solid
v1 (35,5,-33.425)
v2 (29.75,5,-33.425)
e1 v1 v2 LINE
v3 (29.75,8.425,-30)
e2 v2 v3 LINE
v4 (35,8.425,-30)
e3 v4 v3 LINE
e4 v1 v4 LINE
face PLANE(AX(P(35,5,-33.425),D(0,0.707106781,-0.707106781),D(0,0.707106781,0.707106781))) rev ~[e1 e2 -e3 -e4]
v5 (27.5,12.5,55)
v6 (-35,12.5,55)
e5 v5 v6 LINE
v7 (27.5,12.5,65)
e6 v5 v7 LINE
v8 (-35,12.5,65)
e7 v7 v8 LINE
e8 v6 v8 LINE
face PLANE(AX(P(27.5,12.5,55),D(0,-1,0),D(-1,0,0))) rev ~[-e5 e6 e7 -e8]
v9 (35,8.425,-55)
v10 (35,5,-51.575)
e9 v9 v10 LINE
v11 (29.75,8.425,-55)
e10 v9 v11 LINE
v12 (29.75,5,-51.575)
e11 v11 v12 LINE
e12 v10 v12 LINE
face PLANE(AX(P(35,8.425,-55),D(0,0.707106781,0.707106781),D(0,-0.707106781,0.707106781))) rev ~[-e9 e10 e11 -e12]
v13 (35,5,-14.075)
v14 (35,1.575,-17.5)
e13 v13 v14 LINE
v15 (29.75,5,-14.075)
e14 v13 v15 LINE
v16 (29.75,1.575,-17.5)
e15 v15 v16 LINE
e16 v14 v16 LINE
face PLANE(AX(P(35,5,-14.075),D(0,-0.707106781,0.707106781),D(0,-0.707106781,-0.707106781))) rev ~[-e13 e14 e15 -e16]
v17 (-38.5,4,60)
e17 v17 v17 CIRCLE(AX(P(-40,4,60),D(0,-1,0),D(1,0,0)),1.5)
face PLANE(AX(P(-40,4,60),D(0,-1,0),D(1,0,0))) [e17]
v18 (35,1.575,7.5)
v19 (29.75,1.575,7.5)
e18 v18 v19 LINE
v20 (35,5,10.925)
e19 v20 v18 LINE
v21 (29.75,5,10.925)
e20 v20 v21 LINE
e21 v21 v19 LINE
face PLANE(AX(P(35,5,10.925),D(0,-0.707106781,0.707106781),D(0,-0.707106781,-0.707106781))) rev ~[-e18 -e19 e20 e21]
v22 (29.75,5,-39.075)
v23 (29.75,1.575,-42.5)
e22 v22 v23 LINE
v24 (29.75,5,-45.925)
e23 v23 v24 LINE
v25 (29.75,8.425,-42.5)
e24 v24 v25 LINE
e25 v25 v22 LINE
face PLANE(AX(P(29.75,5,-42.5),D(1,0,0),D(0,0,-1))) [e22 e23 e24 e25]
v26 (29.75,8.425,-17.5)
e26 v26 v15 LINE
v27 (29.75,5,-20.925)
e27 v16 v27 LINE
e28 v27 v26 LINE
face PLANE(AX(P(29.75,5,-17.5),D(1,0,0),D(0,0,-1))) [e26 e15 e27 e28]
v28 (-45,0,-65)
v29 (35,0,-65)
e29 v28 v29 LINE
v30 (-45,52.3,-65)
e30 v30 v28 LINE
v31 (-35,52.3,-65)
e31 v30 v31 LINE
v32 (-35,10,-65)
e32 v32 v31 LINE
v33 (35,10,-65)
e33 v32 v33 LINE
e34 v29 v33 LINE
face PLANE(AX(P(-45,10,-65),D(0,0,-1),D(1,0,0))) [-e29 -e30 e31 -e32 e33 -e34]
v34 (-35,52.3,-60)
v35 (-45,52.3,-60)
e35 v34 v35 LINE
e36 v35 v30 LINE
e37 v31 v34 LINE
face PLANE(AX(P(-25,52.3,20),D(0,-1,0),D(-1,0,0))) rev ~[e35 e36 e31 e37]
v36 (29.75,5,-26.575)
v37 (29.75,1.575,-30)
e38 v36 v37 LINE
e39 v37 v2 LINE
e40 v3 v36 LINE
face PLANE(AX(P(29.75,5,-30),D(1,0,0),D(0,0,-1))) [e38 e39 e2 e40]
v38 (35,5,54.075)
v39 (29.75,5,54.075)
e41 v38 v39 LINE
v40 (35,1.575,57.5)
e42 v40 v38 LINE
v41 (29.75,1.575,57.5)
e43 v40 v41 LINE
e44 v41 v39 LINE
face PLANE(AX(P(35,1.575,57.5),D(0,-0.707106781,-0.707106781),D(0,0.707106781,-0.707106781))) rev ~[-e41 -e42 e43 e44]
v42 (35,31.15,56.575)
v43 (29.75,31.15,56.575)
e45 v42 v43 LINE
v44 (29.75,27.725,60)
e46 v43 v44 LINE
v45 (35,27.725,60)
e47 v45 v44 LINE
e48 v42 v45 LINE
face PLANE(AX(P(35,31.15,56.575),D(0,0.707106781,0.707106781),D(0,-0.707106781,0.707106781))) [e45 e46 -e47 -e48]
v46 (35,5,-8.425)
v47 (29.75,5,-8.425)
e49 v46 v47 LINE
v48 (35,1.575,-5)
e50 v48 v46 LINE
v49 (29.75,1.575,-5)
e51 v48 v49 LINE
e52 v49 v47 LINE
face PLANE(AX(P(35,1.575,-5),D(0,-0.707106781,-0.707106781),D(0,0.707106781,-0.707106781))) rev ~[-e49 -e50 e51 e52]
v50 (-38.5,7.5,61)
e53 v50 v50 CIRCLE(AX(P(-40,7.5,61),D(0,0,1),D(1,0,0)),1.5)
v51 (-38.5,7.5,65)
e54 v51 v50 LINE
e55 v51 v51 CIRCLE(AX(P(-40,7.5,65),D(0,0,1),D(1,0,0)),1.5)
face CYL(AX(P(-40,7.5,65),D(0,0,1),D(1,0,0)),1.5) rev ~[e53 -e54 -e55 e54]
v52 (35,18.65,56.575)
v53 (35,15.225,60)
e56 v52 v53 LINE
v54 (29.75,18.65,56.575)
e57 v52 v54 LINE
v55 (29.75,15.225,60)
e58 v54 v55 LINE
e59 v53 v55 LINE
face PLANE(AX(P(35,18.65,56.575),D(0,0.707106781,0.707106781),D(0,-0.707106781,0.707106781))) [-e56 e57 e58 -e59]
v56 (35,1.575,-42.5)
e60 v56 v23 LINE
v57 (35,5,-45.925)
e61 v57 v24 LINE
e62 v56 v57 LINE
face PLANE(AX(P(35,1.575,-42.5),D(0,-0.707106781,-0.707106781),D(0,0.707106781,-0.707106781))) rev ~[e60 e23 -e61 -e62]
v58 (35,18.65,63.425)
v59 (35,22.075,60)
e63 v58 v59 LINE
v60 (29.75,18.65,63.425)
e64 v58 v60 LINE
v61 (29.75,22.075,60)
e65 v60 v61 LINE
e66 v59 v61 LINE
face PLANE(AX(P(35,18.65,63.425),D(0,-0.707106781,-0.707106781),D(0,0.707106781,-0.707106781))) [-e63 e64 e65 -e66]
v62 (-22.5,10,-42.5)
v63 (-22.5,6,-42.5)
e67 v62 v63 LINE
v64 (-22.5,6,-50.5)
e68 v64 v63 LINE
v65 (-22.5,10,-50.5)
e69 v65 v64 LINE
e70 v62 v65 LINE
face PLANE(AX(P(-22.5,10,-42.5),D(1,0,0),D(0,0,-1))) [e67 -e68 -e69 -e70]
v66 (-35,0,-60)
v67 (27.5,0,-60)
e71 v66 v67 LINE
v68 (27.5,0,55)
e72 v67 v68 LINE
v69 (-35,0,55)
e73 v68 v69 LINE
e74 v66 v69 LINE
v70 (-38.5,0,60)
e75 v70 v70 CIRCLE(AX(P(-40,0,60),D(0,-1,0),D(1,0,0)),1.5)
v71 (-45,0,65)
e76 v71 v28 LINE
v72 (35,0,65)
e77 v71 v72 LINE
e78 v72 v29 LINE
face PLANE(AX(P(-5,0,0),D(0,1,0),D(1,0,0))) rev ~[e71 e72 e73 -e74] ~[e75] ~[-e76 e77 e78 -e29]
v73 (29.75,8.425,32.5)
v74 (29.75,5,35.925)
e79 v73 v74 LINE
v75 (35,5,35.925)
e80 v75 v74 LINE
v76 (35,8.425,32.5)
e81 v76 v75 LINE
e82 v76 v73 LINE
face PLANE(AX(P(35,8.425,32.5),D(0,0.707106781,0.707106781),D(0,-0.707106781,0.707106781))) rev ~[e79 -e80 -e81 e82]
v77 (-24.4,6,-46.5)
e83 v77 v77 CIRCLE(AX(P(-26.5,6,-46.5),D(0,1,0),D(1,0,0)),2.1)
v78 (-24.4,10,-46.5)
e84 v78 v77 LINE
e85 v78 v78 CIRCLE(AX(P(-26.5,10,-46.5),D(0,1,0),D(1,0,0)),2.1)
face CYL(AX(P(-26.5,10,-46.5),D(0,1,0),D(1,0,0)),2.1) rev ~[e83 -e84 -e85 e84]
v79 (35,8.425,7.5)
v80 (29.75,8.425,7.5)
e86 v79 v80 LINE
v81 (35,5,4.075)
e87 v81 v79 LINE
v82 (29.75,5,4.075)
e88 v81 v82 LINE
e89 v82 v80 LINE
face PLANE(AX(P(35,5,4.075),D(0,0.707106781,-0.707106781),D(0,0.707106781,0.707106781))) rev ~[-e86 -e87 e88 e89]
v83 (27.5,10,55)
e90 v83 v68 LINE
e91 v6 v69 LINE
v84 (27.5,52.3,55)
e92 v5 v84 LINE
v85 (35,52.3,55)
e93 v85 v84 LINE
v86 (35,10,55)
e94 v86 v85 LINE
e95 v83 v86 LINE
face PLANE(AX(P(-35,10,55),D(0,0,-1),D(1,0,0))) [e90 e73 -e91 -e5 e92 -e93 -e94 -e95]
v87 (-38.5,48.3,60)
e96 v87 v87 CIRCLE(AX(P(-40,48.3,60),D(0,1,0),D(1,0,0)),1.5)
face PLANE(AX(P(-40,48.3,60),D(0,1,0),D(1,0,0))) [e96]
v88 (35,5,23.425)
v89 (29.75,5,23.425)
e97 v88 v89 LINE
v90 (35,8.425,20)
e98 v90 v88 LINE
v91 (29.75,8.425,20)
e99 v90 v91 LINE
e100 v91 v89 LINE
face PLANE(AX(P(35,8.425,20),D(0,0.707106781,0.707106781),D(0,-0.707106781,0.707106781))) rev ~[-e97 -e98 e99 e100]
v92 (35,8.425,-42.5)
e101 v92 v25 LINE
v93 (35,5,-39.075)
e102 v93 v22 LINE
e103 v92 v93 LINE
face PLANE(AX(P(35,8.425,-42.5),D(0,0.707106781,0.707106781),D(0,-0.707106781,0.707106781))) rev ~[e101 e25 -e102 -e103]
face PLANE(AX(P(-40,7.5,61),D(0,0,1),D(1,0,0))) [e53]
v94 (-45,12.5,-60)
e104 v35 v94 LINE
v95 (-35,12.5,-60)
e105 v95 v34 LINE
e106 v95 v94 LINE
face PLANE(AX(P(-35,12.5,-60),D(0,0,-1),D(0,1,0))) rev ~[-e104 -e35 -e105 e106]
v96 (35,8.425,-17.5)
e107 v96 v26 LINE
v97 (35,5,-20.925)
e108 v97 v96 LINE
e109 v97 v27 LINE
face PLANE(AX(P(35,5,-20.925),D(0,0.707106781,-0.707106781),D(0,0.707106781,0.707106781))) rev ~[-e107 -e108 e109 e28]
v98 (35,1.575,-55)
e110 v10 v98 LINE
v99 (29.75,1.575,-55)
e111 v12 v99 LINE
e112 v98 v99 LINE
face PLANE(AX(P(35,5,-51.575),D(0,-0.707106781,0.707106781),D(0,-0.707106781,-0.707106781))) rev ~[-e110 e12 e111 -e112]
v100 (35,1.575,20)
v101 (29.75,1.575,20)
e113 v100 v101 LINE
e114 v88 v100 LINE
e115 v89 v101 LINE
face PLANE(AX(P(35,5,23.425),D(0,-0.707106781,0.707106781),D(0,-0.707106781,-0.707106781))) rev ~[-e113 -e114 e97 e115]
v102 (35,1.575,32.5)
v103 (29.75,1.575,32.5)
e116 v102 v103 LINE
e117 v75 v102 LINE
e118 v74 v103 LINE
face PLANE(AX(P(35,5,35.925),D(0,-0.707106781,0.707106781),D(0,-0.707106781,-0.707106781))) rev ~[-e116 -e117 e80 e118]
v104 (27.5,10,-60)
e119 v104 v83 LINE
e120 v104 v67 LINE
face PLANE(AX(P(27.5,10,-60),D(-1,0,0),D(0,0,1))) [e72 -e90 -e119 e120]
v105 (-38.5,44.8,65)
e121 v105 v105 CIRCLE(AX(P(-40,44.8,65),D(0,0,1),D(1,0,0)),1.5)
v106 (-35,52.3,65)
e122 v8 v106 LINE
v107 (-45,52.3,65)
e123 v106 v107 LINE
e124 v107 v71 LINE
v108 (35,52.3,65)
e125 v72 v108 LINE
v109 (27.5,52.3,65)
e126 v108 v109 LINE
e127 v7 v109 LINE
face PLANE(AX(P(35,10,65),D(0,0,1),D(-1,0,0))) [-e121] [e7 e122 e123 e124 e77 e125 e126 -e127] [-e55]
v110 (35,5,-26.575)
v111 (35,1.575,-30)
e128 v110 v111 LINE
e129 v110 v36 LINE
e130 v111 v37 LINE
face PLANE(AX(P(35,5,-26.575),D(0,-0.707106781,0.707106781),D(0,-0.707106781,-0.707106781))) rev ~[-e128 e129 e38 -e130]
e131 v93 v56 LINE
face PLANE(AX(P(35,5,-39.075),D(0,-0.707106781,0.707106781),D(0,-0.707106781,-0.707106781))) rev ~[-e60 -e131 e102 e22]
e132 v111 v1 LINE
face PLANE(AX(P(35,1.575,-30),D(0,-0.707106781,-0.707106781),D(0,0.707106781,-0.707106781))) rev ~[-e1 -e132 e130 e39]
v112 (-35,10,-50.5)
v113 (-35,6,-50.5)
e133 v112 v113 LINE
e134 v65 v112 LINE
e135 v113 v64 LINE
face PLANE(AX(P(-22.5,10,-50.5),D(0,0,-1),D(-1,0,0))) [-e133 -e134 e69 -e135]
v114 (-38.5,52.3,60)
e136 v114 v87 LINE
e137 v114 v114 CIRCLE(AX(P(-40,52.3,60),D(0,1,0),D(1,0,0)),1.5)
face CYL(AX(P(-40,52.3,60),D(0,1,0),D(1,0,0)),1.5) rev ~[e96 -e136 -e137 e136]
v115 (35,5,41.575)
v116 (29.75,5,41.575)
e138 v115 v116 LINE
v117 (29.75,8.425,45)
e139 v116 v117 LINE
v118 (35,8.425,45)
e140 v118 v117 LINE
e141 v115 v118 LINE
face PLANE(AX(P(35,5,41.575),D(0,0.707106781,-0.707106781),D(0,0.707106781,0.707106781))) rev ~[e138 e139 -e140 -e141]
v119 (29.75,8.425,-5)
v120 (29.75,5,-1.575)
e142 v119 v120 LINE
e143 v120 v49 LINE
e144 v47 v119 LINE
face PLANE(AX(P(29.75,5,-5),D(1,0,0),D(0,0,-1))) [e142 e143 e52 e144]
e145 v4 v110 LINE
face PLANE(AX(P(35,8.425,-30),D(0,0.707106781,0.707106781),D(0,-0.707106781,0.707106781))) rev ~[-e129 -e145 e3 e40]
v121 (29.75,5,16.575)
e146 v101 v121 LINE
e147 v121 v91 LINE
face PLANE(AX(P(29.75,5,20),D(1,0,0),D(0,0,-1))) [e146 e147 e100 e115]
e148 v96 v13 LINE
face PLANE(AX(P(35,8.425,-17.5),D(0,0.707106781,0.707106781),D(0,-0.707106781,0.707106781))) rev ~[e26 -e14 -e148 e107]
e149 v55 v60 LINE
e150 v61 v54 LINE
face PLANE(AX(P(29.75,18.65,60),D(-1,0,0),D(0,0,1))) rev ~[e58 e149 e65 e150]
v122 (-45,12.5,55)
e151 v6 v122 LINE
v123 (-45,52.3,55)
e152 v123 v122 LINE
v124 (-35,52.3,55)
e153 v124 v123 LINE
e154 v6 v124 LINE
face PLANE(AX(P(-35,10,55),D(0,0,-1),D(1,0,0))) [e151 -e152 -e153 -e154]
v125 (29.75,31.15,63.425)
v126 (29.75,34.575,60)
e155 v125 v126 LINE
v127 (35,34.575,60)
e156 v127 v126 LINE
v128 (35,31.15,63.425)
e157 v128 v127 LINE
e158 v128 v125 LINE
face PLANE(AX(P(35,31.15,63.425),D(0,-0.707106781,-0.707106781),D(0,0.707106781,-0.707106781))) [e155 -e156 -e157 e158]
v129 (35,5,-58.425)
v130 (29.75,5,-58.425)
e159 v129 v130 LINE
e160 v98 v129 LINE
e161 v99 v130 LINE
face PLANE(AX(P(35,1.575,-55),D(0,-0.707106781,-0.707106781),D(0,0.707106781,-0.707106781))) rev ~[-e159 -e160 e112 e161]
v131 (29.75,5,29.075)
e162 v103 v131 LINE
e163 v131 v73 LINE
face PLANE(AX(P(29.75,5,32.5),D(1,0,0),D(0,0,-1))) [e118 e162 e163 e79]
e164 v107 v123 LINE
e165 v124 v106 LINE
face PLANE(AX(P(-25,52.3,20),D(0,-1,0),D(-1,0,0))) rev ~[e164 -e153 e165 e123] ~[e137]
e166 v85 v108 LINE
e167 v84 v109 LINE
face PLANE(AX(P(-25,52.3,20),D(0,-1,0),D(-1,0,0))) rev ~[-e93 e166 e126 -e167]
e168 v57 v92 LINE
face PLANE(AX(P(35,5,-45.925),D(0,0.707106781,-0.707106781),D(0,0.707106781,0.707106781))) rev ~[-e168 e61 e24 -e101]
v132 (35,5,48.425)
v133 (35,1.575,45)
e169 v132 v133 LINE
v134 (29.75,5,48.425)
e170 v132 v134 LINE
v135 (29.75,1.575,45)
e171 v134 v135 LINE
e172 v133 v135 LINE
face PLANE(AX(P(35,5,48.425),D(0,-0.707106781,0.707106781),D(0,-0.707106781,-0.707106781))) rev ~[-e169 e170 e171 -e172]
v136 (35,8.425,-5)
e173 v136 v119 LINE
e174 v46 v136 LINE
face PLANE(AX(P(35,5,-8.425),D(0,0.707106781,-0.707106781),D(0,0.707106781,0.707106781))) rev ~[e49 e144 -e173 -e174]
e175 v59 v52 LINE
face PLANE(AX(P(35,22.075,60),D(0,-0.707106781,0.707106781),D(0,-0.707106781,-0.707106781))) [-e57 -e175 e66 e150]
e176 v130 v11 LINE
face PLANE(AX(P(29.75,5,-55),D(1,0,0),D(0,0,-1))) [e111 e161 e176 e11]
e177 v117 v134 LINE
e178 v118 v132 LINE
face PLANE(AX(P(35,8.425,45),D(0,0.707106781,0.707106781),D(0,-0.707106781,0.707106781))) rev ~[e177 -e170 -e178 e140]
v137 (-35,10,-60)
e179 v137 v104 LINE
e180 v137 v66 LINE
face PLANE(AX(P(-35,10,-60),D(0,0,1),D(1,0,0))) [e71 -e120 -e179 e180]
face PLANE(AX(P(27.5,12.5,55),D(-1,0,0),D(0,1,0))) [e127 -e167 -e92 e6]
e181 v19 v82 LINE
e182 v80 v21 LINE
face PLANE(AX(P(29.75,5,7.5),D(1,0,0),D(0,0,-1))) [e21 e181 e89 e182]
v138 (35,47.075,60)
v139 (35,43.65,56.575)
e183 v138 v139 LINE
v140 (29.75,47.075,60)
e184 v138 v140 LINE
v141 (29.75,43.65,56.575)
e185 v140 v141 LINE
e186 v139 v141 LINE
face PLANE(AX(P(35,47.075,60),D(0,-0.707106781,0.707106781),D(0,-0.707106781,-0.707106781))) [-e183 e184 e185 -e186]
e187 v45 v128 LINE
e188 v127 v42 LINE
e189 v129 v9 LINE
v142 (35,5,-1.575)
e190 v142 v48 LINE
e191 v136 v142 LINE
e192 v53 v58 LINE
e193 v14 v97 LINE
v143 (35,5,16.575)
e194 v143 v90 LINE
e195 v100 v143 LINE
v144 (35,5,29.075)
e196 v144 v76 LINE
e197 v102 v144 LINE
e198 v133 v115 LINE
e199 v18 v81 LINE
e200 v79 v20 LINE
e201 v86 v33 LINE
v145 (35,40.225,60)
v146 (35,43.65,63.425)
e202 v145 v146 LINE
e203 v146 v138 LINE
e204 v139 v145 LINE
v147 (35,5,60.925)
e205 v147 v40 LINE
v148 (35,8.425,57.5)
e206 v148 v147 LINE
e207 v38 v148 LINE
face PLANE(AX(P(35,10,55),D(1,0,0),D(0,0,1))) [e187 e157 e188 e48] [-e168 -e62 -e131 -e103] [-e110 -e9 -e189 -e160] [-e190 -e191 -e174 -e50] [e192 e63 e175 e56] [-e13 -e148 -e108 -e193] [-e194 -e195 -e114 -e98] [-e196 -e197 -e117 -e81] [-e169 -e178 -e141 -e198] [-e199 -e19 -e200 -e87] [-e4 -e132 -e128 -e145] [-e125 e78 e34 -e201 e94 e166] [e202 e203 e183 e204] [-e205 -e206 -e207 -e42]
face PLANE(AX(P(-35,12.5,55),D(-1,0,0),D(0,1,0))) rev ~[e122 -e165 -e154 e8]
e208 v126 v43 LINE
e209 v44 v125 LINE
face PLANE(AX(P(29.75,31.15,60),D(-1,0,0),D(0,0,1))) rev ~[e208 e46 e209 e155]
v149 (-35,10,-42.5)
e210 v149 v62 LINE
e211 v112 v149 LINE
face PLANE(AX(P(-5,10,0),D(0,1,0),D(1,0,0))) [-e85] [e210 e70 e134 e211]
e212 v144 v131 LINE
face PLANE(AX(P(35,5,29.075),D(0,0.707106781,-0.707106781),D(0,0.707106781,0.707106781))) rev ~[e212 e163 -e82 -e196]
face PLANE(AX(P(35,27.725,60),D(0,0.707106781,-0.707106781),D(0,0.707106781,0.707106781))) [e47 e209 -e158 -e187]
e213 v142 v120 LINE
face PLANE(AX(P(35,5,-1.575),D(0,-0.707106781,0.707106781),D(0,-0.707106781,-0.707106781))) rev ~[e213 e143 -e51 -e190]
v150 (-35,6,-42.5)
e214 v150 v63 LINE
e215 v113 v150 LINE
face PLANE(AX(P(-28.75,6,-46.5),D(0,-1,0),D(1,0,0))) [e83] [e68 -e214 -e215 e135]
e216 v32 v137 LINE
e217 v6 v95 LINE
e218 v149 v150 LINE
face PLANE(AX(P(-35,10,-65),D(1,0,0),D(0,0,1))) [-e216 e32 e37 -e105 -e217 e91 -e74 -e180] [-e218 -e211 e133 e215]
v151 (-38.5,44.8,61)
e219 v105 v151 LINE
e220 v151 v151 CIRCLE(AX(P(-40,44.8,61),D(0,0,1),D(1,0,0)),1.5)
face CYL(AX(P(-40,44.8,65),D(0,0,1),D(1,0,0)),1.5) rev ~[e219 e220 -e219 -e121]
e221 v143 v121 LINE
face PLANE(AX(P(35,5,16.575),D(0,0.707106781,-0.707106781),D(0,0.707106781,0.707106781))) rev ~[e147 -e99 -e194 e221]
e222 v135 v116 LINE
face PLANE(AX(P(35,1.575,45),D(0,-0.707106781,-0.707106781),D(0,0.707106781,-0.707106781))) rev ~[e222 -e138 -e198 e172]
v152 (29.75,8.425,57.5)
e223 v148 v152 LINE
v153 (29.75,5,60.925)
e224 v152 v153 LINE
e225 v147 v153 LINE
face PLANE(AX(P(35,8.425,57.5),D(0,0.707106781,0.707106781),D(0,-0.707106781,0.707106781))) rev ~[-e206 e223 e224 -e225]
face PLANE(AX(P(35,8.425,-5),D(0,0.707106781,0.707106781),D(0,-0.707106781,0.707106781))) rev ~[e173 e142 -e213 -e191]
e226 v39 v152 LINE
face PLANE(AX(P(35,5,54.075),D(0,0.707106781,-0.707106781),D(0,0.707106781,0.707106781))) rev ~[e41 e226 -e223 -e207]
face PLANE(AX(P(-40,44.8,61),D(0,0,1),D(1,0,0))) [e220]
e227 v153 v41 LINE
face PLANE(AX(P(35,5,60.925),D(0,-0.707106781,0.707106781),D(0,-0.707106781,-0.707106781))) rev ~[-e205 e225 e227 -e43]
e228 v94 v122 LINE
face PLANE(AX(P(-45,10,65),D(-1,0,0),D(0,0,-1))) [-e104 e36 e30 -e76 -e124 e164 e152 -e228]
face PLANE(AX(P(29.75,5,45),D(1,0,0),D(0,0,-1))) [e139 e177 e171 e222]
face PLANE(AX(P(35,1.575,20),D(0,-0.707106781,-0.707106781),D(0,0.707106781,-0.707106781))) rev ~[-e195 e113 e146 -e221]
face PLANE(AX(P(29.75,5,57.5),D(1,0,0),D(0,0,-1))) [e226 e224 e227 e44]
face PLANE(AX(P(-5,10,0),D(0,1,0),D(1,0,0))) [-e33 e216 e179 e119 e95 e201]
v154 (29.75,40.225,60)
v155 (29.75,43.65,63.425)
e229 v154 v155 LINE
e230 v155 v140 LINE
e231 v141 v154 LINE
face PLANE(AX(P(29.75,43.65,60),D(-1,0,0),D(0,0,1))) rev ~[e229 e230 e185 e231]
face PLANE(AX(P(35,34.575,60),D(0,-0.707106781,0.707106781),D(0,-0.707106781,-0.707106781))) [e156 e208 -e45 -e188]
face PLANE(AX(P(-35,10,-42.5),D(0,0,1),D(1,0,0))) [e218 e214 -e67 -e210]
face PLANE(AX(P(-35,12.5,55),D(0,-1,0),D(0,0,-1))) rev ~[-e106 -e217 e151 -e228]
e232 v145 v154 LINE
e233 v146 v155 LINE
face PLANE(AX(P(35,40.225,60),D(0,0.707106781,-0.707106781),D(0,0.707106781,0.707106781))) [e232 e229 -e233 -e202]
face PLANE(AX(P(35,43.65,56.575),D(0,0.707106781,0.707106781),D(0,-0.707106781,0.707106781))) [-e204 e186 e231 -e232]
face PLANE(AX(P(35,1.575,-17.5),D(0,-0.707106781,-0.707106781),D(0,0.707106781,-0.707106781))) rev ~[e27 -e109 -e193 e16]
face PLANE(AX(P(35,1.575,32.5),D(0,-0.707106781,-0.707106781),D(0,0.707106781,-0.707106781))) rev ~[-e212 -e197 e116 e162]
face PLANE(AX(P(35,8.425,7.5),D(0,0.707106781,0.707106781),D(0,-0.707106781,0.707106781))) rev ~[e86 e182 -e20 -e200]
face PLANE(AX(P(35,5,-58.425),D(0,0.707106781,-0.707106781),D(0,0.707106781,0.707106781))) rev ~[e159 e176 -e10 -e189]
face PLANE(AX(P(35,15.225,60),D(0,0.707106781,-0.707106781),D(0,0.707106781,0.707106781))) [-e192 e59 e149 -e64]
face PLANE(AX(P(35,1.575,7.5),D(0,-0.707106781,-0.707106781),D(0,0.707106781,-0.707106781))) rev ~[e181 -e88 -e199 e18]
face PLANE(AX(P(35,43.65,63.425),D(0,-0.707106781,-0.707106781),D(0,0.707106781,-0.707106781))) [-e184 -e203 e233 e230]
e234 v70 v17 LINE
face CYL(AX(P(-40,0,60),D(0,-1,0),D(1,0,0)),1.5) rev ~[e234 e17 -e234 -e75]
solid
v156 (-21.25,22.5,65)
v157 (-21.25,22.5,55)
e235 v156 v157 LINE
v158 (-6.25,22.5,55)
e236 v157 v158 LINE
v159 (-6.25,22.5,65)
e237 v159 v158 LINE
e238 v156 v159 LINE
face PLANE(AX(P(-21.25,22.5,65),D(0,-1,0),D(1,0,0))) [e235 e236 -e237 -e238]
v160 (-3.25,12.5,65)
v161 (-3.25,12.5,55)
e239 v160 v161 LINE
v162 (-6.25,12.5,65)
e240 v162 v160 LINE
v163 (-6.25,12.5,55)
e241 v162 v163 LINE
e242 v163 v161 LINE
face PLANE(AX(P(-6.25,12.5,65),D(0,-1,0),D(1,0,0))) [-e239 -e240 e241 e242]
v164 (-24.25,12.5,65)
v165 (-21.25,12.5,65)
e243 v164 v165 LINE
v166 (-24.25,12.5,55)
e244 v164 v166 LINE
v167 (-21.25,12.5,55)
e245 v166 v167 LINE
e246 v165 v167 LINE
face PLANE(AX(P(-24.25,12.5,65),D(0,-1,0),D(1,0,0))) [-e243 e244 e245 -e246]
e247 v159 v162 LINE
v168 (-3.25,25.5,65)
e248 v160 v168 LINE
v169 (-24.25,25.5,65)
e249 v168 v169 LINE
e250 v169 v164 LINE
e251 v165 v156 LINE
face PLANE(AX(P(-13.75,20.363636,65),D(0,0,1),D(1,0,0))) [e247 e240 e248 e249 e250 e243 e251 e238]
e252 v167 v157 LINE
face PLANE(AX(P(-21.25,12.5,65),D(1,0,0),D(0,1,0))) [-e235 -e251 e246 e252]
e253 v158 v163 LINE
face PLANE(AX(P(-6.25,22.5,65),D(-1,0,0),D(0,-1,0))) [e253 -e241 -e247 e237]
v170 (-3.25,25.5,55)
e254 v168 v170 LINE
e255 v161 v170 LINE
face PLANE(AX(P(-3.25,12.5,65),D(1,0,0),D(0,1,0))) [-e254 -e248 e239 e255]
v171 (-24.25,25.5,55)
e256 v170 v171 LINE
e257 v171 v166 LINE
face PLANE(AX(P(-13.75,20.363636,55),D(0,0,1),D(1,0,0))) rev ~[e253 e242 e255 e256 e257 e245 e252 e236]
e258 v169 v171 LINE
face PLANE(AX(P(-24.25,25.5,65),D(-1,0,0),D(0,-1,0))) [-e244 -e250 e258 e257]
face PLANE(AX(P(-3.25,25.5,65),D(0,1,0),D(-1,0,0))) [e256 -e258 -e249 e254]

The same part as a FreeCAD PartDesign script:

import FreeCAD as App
import Part
import Sketcher
Q = App.Units.Quantity

doc = App.newDocument("Part")
body = doc.addObject("PartDesign::Body", "Body")

sketch1 = doc.addObject("Sketcher::SketchObject", "Sketch")
body.addObject(sketch1)
sketch1.AttachmentSupport = (doc.XZ_Plane, [""])
sketch1.MapMode = "FlatFace"
sketch1.addGeometry([
    Part.LineSegment(App.Vector(-45, -65, 0), App.Vector(-45, 65, 0)),
    Part.LineSegment(App.Vector(-45, 65, 0), App.Vector(35, 65, 0)),
    Part.LineSegment(App.Vector(35, 65, 0), App.Vector(35, -65, 0)),
    Part.LineSegment(App.Vector(35, -65, 0), App.Vector(-45, -65, 0)),
], False)
sketch1.addConstraint([
    Sketcher.Constraint("Coincident", 0, 2, 1, 1),
    Sketcher.Constraint("Coincident", 1, 2, 2, 1),
    Sketcher.Constraint("Coincident", 2, 2, 3, 1),
    Sketcher.Constraint("Coincident", 3, 2, 0, 1),
    Sketcher.Constraint("Vertical", 0),
    Sketcher.Constraint("Horizontal", 1),
    Sketcher.Constraint("Vertical", 2),
    Sketcher.Constraint("Horizontal", 3),
    Sketcher.Constraint("DistanceX", 1, 1, 1, 2, Q("80 mm")),
    Sketcher.Constraint("DistanceY", 0, 1, 0, 2, Q("130 mm")),
    Sketcher.Constraint("DistanceX", 0, 2, -1, 1, Q("45 mm")),
    Sketcher.Constraint("DistanceY", -1, 1, 0, 2, Q("65 mm")),
])
pad1 = doc.addObject("PartDesign::Pad", "Pad")
body.addObject(pad1)
pad1.Profile = sketch1
pad1.Length = 10
pad1.Reversed = True

sketch2 = doc.addObject("Sketcher::SketchObject", "Sketch001")
body.addObject(sketch2)
sketch2.AttachmentSupport = (doc.XZ_Plane, [""])
sketch2.MapMode = "FlatFace"
sketch2.AttachmentOffset = App.Placement(App.Vector(0, 0, -10), App.Rotation())
sketch2.addGeometry([
    Part.LineSegment(App.Vector(-45, 65, 0), App.Vector(35, 65, 0)),
    Part.LineSegment(App.Vector(35, 65, 0), App.Vector(35, 55, 0)),
    Part.LineSegment(App.Vector(35, 55, 0), App.Vector(-35, 55, 0)),
    Part.LineSegment(App.Vector(-35, 55, 0), App.Vector(-35, -65, 0)),
    Part.LineSegment(App.Vector(-35, -65, 0), App.Vector(-45, -65, 0)),
    Part.LineSegment(App.Vector(-45, -65, 0), App.Vector(-45, 65, 0)),
], False)
sketch2.addConstraint([
    Sketcher.Constraint("Coincident", 0, 2, 1, 1),
    Sketcher.Constraint("Coincident", 1, 2, 2, 1),
    Sketcher.Constraint("Coincident", 2, 2, 3, 1),
    Sketcher.Constraint("Coincident", 3, 2, 4, 1),
    Sketcher.Constraint("Coincident", 4, 2, 5, 1),
    Sketcher.Constraint("Coincident", 5, 2, 0, 1),
    Sketcher.Constraint("Horizontal", 0),
    Sketcher.Constraint("Vertical", 1),
    Sketcher.Constraint("Horizontal", 2),
    Sketcher.Constraint("Vertical", 3),
    Sketcher.Constraint("Horizontal", 4),
    Sketcher.Constraint("Vertical", 5),
    Sketcher.Constraint("Symmetric", 0, 2, 3, 2, -1, 1),
    Sketcher.Constraint("Equal", 4, 1),
    Sketcher.Constraint("DistanceX", 0, 1, 0, 2, Q("80 mm")),
    Sketcher.Constraint("DistanceX", 2, 2, 2, 1, Q("70 mm")),
    Sketcher.Constraint("DistanceY", 3, 2, 3, 1, Q("120 mm")),
])
pad2 = doc.addObject("PartDesign::Pad", "Pad001")
body.addObject(pad2)
pad2.Profile = sketch2
pad2.Length = 42.3
pad2.Reversed = True

sketch3 = doc.addObject("Sketcher::SketchObject", "Sketch002")
body.addObject(sketch3)
sketch3.AttachmentSupport = (doc.YZ_Plane, [""])
sketch3.MapMode = "FlatFace"
sketch3.AttachmentOffset = App.Placement(App.Vector(0, 0, 35), App.Rotation())
sketch3.addGeometry([
    Part.LineSegment(App.Vector(5, -20.925, 0), App.Vector(8.425, -17.5, 0)),
    Part.LineSegment(App.Vector(8.425, -17.5, 0), App.Vector(5, -14.075, 0)),
    Part.LineSegment(App.Vector(5, -14.075, 0), App.Vector(1.575, -17.5, 0)),
    Part.LineSegment(App.Vector(1.575, -17.5, 0), App.Vector(5, -20.925, 0)),
    Part.LineSegment(App.Vector(5, -33.425, 0), App.Vector(8.425, -30, 0)),
    Part.LineSegment(App.Vector(8.425, -30, 0), App.Vector(5, -26.575, 0)),
    Part.LineSegment(App.Vector(5, -26.575, 0), App.Vector(1.575, -30, 0)),
    Part.LineSegment(App.Vector(1.575, -30, 0), App.Vector(5, -33.425, 0)),
    Part.LineSegment(App.Vector(8.425, -5, 0), App.Vector(5, -1.575, 0)),
    Part.LineSegment(App.Vector(5, -1.575, 0), App.Vector(1.575, -5, 0)),
    Part.LineSegment(App.Vector(1.575, -5, 0), App.Vector(5, -8.425, 0)),
    Part.LineSegment(App.Vector(5, -8.425, 0), App.Vector(8.425, -5, 0)),
    Part.LineSegment(App.Vector(5, 4.075, 0), App.Vector(8.425, 7.5, 0)),
    Part.LineSegment(App.Vector(8.425, 7.5, 0), App.Vector(5, 10.925, 0)),
    Part.LineSegment(App.Vector(5, 10.925, 0), App.Vector(1.575, 7.5, 0)),
    Part.LineSegment(App.Vector(1.575, 7.5, 0), App.Vector(5, 4.075, 0)),
    Part.LineSegment(App.Vector(5, 16.575, 0), App.Vector(8.425, 20, 0)),
    Part.LineSegment(App.Vector(8.425, 20, 0), App.Vector(5, 23.425, 0)),
    Part.LineSegment(App.Vector(5, 23.425, 0), App.Vector(1.575, 20, 0)),
    Part.LineSegment(App.Vector(1.575, 20, 0), App.Vector(5, 16.575, 0)),
    Part.LineSegment(App.Vector(5, 29.075, 0), App.Vector(8.425, 32.5, 0)),
    Part.LineSegment(App.Vector(8.425, 32.5, 0), App.Vector(5, 35.925, 0)),
    Part.LineSegment(App.Vector(5, 35.925, 0), App.Vector(1.575, 32.5, 0)),
    Part.LineSegment(App.Vector(1.575, 32.5, 0), App.Vector(5, 29.075, 0)),
    Part.LineSegment(App.Vector(5, 41.575, 0), App.Vector(8.425, 45, 0)),
    Part.LineSegment(App.Vector(8.425, 45, 0), App.Vector(5, 48.425, 0)),
    Part.LineSegment(App.Vector(5, 48.425, 0), App.Vector(1.575, 45, 0)),
    Part.LineSegment(App.Vector(1.575, 45, 0), App.Vector(5, 41.575, 0)),
    Part.LineSegment(App.Vector(5, 54.075, 0), App.Vector(8.425, 57.5, 0)),
    Part.LineSegment(App.Vector(8.425, 57.5, 0), App.Vector(5, 60.925, 0)),
    Part.LineSegment(App.Vector(5, 60.925, 0), App.Vector(1.575, 57.5, 0)),
    Part.LineSegment(App.Vector(1.575, 57.5, 0), App.Vector(5, 54.075, 0)),
    Part.LineSegment(App.Vector(34.575, 60, 0), App.Vector(31.15, 63.425, 0)),
    Part.LineSegment(App.Vector(31.15, 63.425, 0), App.Vector(27.725, 60, 0)),
    Part.LineSegment(App.Vector(27.725, 60, 0), App.Vector(31.15, 56.575, 0)),
    Part.LineSegment(App.Vector(31.15, 56.575, 0), App.Vector(34.575, 60, 0)),
    Part.LineSegment(App.Vector(43.65, 63.425, 0), App.Vector(40.225, 60, 0)),
    Part.LineSegment(App.Vector(40.225, 60, 0), App.Vector(43.65, 56.575, 0)),
    Part.LineSegment(App.Vector(43.65, 56.575, 0), App.Vector(47.075, 60, 0)),
    Part.LineSegment(App.Vector(47.075, 60, 0), App.Vector(43.65, 63.425, 0)),
    Part.LineSegment(App.Vector(18.65, 63.425, 0), App.Vector(15.225, 60, 0)),
    Part.LineSegment(App.Vector(15.225, 60, 0), App.Vector(18.65, 56.575, 0)),
    Part.LineSegment(App.Vector(18.65, 56.575, 0), App.Vector(22.075, 60, 0)),
    Part.LineSegment(App.Vector(22.075, 60, 0), App.Vector(18.65, 63.425, 0)),
    Part.LineSegment(App.Vector(5, -45.925, 0), App.Vector(8.425, -42.5, 0)),
    Part.LineSegment(App.Vector(8.425, -42.5, 0), App.Vector(5, -39.075, 0)),
    Part.LineSegment(App.Vector(5, -39.075, 0), App.Vector(1.575, -42.5, 0)),
    Part.LineSegment(App.Vector(1.575, -42.5, 0), App.Vector(5, -45.925, 0)),
    Part.LineSegment(App.Vector(5, -58.425, 0), App.Vector(8.425, -55, 0)),
    Part.LineSegment(App.Vector(8.425, -55, 0), App.Vector(5, -51.575, 0)),
    Part.LineSegment(App.Vector(5, -51.575, 0), App.Vector(1.575, -55, 0)),
    Part.LineSegment(App.Vector(1.575, -55, 0), App.Vector(5, -58.425, 0)),
], False)
sketch3.addConstraint([
    Sketcher.Constraint("Coincident", 0, 2, 1, 1),
    Sketcher.Constraint("Coincident", 1, 2, 2, 1),
    Sketcher.Constraint("Coincident", 2, 2, 3, 1),
    Sketcher.Constraint("Coincident", 3, 2, 0, 1),
    Sketcher.Constraint("Coincident", 4, 2, 5, 1),
    Sketcher.Constraint("Coincident", 5, 2, 6, 1),
    Sketcher.Constraint("Coincident", 6, 2, 7, 1),
    Sketcher.Constraint("Coincident", 7, 2, 4, 1),
    Sketcher.Constraint("Coincident", 8, 2, 9, 1),
    Sketcher.Constraint("Coincident", 9, 2, 10, 1),
    Sketcher.Constraint("Coincident", 10, 2, 11, 1),
    Sketcher.Constraint("Coincident", 11, 2, 8, 1),
    Sketcher.Constraint("Coincident", 12, 2, 13, 1),
    Sketcher.Constraint("Coincident", 13, 2, 14, 1),
    Sketcher.Constraint("Coincident", 14, 2, 15, 1),
    Sketcher.Constraint("Coincident", 15, 2, 12, 1),
    Sketcher.Constraint("Coincident", 16, 2, 17, 1),
    Sketcher.Constraint("Coincident", 17, 2, 18, 1),
    Sketcher.Constraint("Coincident", 18, 2, 19, 1),
    Sketcher.Constraint("Coincident", 19, 2, 16, 1),
    Sketcher.Constraint("Coincident", 20, 2, 21, 1),
    Sketcher.Constraint("Coincident", 21, 2, 22, 1),
    Sketcher.Constraint("Coincident", 22, 2, 23, 1),
    Sketcher.Constraint("Coincident", 23, 2, 20, 1),
    Sketcher.Constraint("Coincident", 24, 2, 25, 1),
    Sketcher.Constraint("Coincident", 25, 2, 26, 1),
    Sketcher.Constraint("Coincident", 26, 2, 27, 1),
    Sketcher.Constraint("Coincident", 27, 2, 24, 1),
    Sketcher.Constraint("Coincident", 28, 2, 29, 1),
    Sketcher.Constraint("Coincident", 29, 2, 30, 1),
    Sketcher.Constraint("Coincident", 30, 2, 31, 1),
    Sketcher.Constraint("Coincident", 31, 2, 28, 1),
    Sketcher.Constraint("Coincident", 32, 2, 33, 1),
    Sketcher.Constraint("Coincident", 33, 2, 34, 1),
    Sketcher.Constraint("Coincident", 34, 2, 35, 1),
    Sketcher.Constraint("Coincident", 35, 2, 32, 1),
    Sketcher.Constraint("Coincident", 36, 2, 37, 1),
    Sketcher.Constraint("Coincident", 37, 2, 38, 1),
    Sketcher.Constraint("Coincident", 38, 2, 39, 1),
    Sketcher.Constraint("Coincident", 39, 2, 36, 1),
    Sketcher.Constraint("Coincident", 40, 2, 41, 1),
    Sketcher.Constraint("Coincident", 41, 2, 42, 1),
    Sketcher.Constraint("Coincident", 42, 2, 43, 1),
    Sketcher.Constraint("Coincident", 43, 2, 40, 1),
    Sketcher.Constraint("Coincident", 44, 2, 45, 1),
    Sketcher.Constraint("Coincident", 45, 2, 46, 1),
    Sketcher.Constraint("Coincident", 46, 2, 47, 1),
    Sketcher.Constraint("Coincident", 47, 2, 44, 1),
    Sketcher.Constraint("Coincident", 48, 2, 49, 1),
    Sketcher.Constraint("Coincident", 49, 2, 50, 1),
    Sketcher.Constraint("Coincident", 50, 2, 51, 1),
    Sketcher.Constraint("Coincident", 51, 2, 48, 1),
    Sketcher.Constraint("Perpendicular", 0, 1),
    Sketcher.Constraint("Perpendicular", 1, 2),
    Sketcher.Constraint("Perpendicular", 2, 3),
    Sketcher.Constraint("Perpendicular", 3, 4),
    Sketcher.Constraint("Perpendicular", 4, 5),
    Sketcher.Constraint("Perpendicular", 5, 6),
    Sketcher.Constraint("Perpendicular", 6, 7),
    Sketcher.Constraint("Parallel", 7, 8),
    Sketcher.Constraint("Perpendicular", 8, 9),
    Sketcher.Constraint("Perpendicular", 9, 10),
    Sketcher.Constraint("Perpendicular", 10, 11),
    Sketcher.Constraint("Parallel", 11, 12),
    Sketcher.Constraint("Perpendicular", 12, 13),
    Sketcher.Constraint("Perpendicular", 13, 14),
    Sketcher.Constraint("Perpendicular", 14, 15),
    Sketcher.Constraint("Perpendicular", 15, 16),
    Sketcher.Constraint("Perpendicular", 16, 17),
    Sketcher.Constraint("Perpendicular", 17, 18),
    Sketcher.Constraint("Perpendicular", 18, 19),
    Sketcher.Constraint("Perpendicular", 19, 20),
    Sketcher.Constraint("Perpendicular", 20, 21),
    Sketcher.Constraint("Perpendicular", 21, 22),
    Sketcher.Constraint("Perpendicular", 22, 23),
    Sketcher.Constraint("Perpendicular", 23, 24),
    Sketcher.Constraint("Perpendicular", 24, 25),
    Sketcher.Constraint("Perpendicular", 25, 26),
    Sketcher.Constraint("Perpendicular", 26, 27),
    Sketcher.Constraint("Perpendicular", 27, 28),
    Sketcher.Constraint("Perpendicular", 28, 29),
    Sketcher.Constraint("Perpendicular", 29, 30),
    Sketcher.Constraint("Perpendicular", 30, 31),
    Sketcher.Constraint("Parallel", 31, 32),
    Sketcher.Constraint("Perpendicular", 32, 33),
    Sketcher.Constraint("Perpendicular", 33, 34),
    Sketcher.Constraint("Perpendicular", 34, 35),
    Sketcher.Constraint("Parallel", 35, 36),
    Sketcher.Constraint("Perpendicular", 36, 37),
    Sketcher.Constraint("Perpendicular", 37, 38),
    Sketcher.Constraint("Perpendicular", 38, 39),
    Sketcher.Constraint("Perpendicular", 39, 40),
    Sketcher.Constraint("Perpendicular", 40, 41),
    Sketcher.Constraint("Perpendicular", 41, 42),
    Sketcher.Constraint("Perpendicular", 42, 43),
    Sketcher.Constraint("Perpendicular", 43, 44),
    Sketcher.Constraint("Perpendicular", 44, 45),
    Sketcher.Constraint("Perpendicular", 45, 46),
    Sketcher.Constraint("Perpendicular", 46, 47),
    Sketcher.Constraint("Perpendicular", 47, 48),
    Sketcher.Constraint("Perpendicular", 48, 49),
    Sketcher.Constraint("Perpendicular", 49, 50),
    Sketcher.Constraint("Perpendicular", 50, 51),
    Sketcher.Constraint("Horizontal", 0, 2, 2, 2),
    Sketcher.Constraint("Horizontal", 4, 2, 6, 2),
    Sketcher.Constraint("Horizontal", 9, 2, 11, 2),
    Sketcher.Constraint("Horizontal", 12, 2, 14, 2),
    Sketcher.Constraint("Horizontal", 16, 2, 18, 2),
    Sketcher.Constraint("Horizontal", 20, 2, 22, 2),
    Sketcher.Constraint("Horizontal", 24, 2, 26, 2),
    Sketcher.Constraint("Horizontal", 28, 2, 30, 2),
    Sketcher.Constraint("Horizontal", 33, 2, 35, 2),
    Sketcher.Constraint("Horizontal", 35, 2, 36, 2),
    Sketcher.Constraint("Horizontal", 34, 2, 37, 2),
    Sketcher.Constraint("Horizontal", 36, 2, 38, 2),
    Sketcher.Constraint("Horizontal", 38, 2, 40, 2),
    Sketcher.Constraint("Horizontal", 37, 2, 41, 2),
    Sketcher.Constraint("Horizontal", 40, 2, 42, 2),
    Sketcher.Constraint("Horizontal", 44, 2, 46, 2),
    Sketcher.Constraint("Horizontal", 48, 2, 50, 2),
    Sketcher.Constraint("Vertical", 1, 2, 3, 2),
    Sketcher.Constraint("Vertical", 0, 2, 4, 2),
    Sketcher.Constraint("Vertical", 3, 2, 5, 2),
    Sketcher.Constraint("Vertical", 7, 2, 8, 2),
    Sketcher.Constraint("Vertical", 6, 2, 9, 2),
    Sketcher.Constraint("Vertical", 11, 2, 12, 2),
    Sketcher.Constraint("Vertical", 10, 2, 13, 2),
    Sketcher.Constraint("Vertical", 12, 2, 16, 2),
    Sketcher.Constraint("Vertical", 15, 2, 17, 2),
    Sketcher.Constraint("Vertical", 16, 2, 20, 2),
    Sketcher.Constraint("Vertical", 19, 2, 21, 2),
    Sketcher.Constraint("Vertical", 20, 2, 24, 2),
    Sketcher.Constraint("Vertical", 23, 2, 25, 2),
    Sketcher.Constraint("Vertical", 24, 2, 28, 2),
    Sketcher.Constraint("Vertical", 27, 2, 29, 2),
    Sketcher.Constraint("Vertical", 28, 2, 44, 2),
    Sketcher.Constraint("Vertical", 31, 2, 45, 2),
    Sketcher.Constraint("Vertical", 44, 2, 48, 2),
    Sketcher.Constraint("Vertical", 47, 2, 49, 2),
    Sketcher.Constraint("Equal", 31, 32),
    Sketcher.Constraint("DistanceX", -1, 1, 1, 2, Q("5 mm")),
    Sketcher.Constraint("DistanceY", 4, 2, -1, 1, Q("30 mm")),
    Sketcher.Constraint("DistanceY", 9, 2, -1, 1, Q("5 mm")),
    Sketcher.Constraint("DistanceY", -1, 1, 16, 2, Q("20 mm")),
    Sketcher.Constraint("DistanceY", -1, 1, 24, 2, Q("45 mm")),
    Sketcher.Constraint("DistanceY", -1, 1, 33, 2, Q("60 mm")),
    Sketcher.Constraint("DistanceY", 48, 2, -1, 1, Q("55 mm")),
    Sketcher.Constraint("DistanceY", 0, 2, -1, 1, Q("17.5 mm")),
    Sketcher.Constraint("DistanceY", -1, 1, 12, 2, Q("7.5 mm")),
    Sketcher.Constraint("DistanceY", -1, 1, 20, 2, Q("32.5 mm")),
    Sketcher.Constraint("DistanceY", -1, 1, 28, 2, Q("57.5 mm")),
    Sketcher.Constraint("DistanceY", 44, 2, -1, 1, Q("42.5 mm")),
    Sketcher.Constraint("DistanceX", 28, 2, 33, 2, Q("19.3 mm")),
    Sketcher.Constraint("DistanceX", 33, 2, 36, 2, Q("12.5 mm")),
    Sketcher.Constraint("DistanceX", 28, 2, 40, 2, Q("6.8 mm")),
    Sketcher.Constraint("DistanceX", -1, 1, 32, 2, Q("31.15 mm")),
])
pocket1 = doc.addObject("PartDesign::Pocket", "Pocket")
body.addObject(pocket1)
pocket1.Profile = sketch3
pocket1.Length = 5.25

sketch4 = doc.addObject("Sketcher::SketchObject", "Sketch003")
body.addObject(sketch4)
sketch4.AttachmentSupport = (doc.XZ_Plane, [""])
sketch4.MapMode = "FlatFace"
sketch4.AttachmentOffset = App.Placement(App.Vector(0, 0, -10), App.Rotation())
sketch4.addGeometry(Part.Circle(App.Vector(-26.5, -46.5, 0), App.Vector(0, 0, 1), 2.1), False)
sketch4.addConstraint([
    Sketcher.Constraint("Diameter", 0, Q("4.2 mm")),
    Sketcher.Constraint("DistanceX", 0, 3, -1, 1, Q("26.5 mm")),
    Sketcher.Constraint("DistanceY", 0, 3, -1, 1, Q("46.5 mm")),
])
pocket2 = doc.addObject("PartDesign::Pocket", "Pocket001")
body.addObject(pocket2)
pocket2.Profile = sketch4
pocket2.Type = "ThroughAll"
pocket2.Reversed = True

sketch5 = doc.addObject("Sketcher::SketchObject", "Sketch004")
body.addObject(sketch5)
sketch5.AttachmentSupport = (doc.XZ_Plane, [""])
sketch5.MapMode = "FlatFace"
sketch5.AttachmentOffset = App.Placement(App.Vector(0, 0, -10), App.Rotation())
sketch5.addGeometry([
    Part.LineSegment(App.Vector(-35, -42.5, 0), App.Vector(-35, 55, 0)),
    Part.LineSegment(App.Vector(-35, 55, 0), App.Vector(27.5, 55, 0)),
    Part.LineSegment(App.Vector(27.5, 55, 0), App.Vector(27.5, -60, 0)),
    Part.LineSegment(App.Vector(27.5, -60, 0), App.Vector(-35, -60, 0)),
    Part.LineSegment(App.Vector(-35, -60, 0), App.Vector(-35, -50.5, 0)),
    Part.LineSegment(App.Vector(-35, -50.5, 0), App.Vector(-22.5, -50.5, 0)),
    Part.LineSegment(App.Vector(-22.5, -50.5, 0), App.Vector(-22.5, -42.5, 0)),
    Part.LineSegment(App.Vector(-22.5, -42.5, 0), App.Vector(-35, -42.5, 0)),
], False)
sketch5.addConstraint([
    Sketcher.Constraint("Coincident", 0, 2, 1, 1),
    Sketcher.Constraint("Coincident", 1, 2, 2, 1),
    Sketcher.Constraint("Coincident", 2, 2, 3, 1),
    Sketcher.Constraint("Coincident", 3, 2, 4, 1),
    Sketcher.Constraint("Coincident", 4, 2, 5, 1),
    Sketcher.Constraint("Coincident", 5, 2, 6, 1),
    Sketcher.Constraint("Coincident", 6, 2, 7, 1),
    Sketcher.Constraint("Coincident", 7, 2, 0, 1),
    Sketcher.Constraint("Vertical", 0),
    Sketcher.Constraint("Horizontal", 1),
    Sketcher.Constraint("Vertical", 2),
    Sketcher.Constraint("Horizontal", 3),
    Sketcher.Constraint("Vertical", 4),
    Sketcher.Constraint("Horizontal", 5),
    Sketcher.Constraint("Vertical", 6),
    Sketcher.Constraint("Horizontal", 7),
    Sketcher.Constraint("Vertical", 0, 2, 3, 2),
    Sketcher.Constraint("DistanceY", 2, 2, 2, 1, Q("115 mm")),
    Sketcher.Constraint("DistanceY", 6, 1, 6, 2, Q("8 mm")),
    Sketcher.Constraint("DistanceX", 1, 1, 1, 2, Q("62.5 mm")),
    Sketcher.Constraint("DistanceX", 5, 1, 5, 2, Q("12.5 mm")),
    Sketcher.Constraint("DistanceY", 0, 1, 0, 2, Q("97.5 mm")),
    Sketcher.Constraint("DistanceX", 0, 2, -1, 1, Q("35 mm")),
    Sketcher.Constraint("DistanceY", -1, 1, 0, 2, Q("55 mm")),
])
pocket3 = doc.addObject("PartDesign::Pocket", "Pocket002")
body.addObject(pocket3)
pocket3.Profile = sketch5
pocket3.Type = "ThroughAll"
pocket3.Reversed = True

sketch6 = doc.addObject("Sketcher::SketchObject", "Sketch005")
body.addObject(sketch6)
sketch6.AttachmentSupport = (doc.YZ_Plane, [""])
sketch6.MapMode = "FlatFace"
sketch6.AttachmentOffset = App.Placement(App.Vector(0, 0, -35), App.Rotation())
sketch6.addGeometry([
    Part.LineSegment(App.Vector(52.3, 55, 0), App.Vector(12.5, 55, 0)),
    Part.LineSegment(App.Vector(12.5, 55, 0), App.Vector(12.5, -60, 0)),
    Part.LineSegment(App.Vector(12.5, -60, 0), App.Vector(52.3, -60, 0)),
    Part.LineSegment(App.Vector(52.3, -60, 0), App.Vector(52.3, 55, 0)),
], False)
sketch6.addConstraint([
    Sketcher.Constraint("Coincident", 0, 2, 1, 1),
    Sketcher.Constraint("Coincident", 1, 2, 2, 1),
    Sketcher.Constraint("Coincident", 2, 2, 3, 1),
    Sketcher.Constraint("Coincident", 3, 2, 0, 1),
    Sketcher.Constraint("Horizontal", 0),
    Sketcher.Constraint("Vertical", 1),
    Sketcher.Constraint("Horizontal", 2),
    Sketcher.Constraint("Vertical", 3),
    Sketcher.Constraint("DistanceY", 1, 2, 1, 1, Q("115 mm")),
    Sketcher.Constraint("DistanceX", 0, 2, 0, 1, Q("39.8 mm")),
    Sketcher.Constraint("DistanceY", -1, 1, 0, 2, Q("55 mm")),
    Sketcher.Constraint("DistanceX", -1, 1, 0, 2, Q("12.5 mm")),
])
pocket4 = doc.addObject("PartDesign::Pocket", "Pocket003")
body.addObject(pocket4)
pocket4.Profile = sketch6
pocket4.Type = "ThroughAll"

sketch7 = doc.addObject("Sketcher::SketchObject", "Sketch006")
body.addObject(sketch7)
sketch7.AttachmentSupport = (doc.XY_Plane, [""])
sketch7.MapMode = "FlatFace"
sketch7.AttachmentOffset = App.Placement(App.Vector(0, 0, 55), App.Rotation())
sketch7.addGeometry([
    Part.LineSegment(App.Vector(27.5, 52.3, 0), App.Vector(27.5, 12.5, 0)),
    Part.LineSegment(App.Vector(27.5, 12.5, 0), App.Vector(-35, 12.5, 0)),
    Part.LineSegment(App.Vector(-35, 12.5, 0), App.Vector(-35, 52.3, 0)),
    Part.LineSegment(App.Vector(-35, 52.3, 0), App.Vector(27.5, 52.3, 0)),
], False)
sketch7.addConstraint([
    Sketcher.Constraint("Coincident", 0, 2, 1, 1),
    Sketcher.Constraint("Coincident", 1, 2, 2, 1),
    Sketcher.Constraint("Coincident", 2, 2, 3, 1),
    Sketcher.Constraint("Coincident", 3, 2, 0, 1),
    Sketcher.Constraint("Vertical", 0),
    Sketcher.Constraint("Horizontal", 1),
    Sketcher.Constraint("Vertical", 2),
    Sketcher.Constraint("Horizontal", 3),
    Sketcher.Constraint("DistanceX", 1, 2, 1, 1, Q("62.5 mm")),
    Sketcher.Constraint("DistanceY", 0, 2, 0, 1, Q("39.8 mm")),
    Sketcher.Constraint("DistanceX", 1, 2, -1, 1, Q("35 mm")),
    Sketcher.Constraint("DistanceY", -1, 1, 0, 2, Q("12.5 mm")),
])
pocket5 = doc.addObject("PartDesign::Pocket", "Pocket004")
body.addObject(pocket5)
pocket5.Profile = sketch7
pocket5.Length = 10
pocket5.Reversed = True

sketch8 = doc.addObject("Sketcher::SketchObject", "Sketch007")
body.addObject(sketch8)
sketch8.AttachmentSupport = (doc.XZ_Plane, [""])
sketch8.MapMode = "FlatFace"
sketch8.AttachmentOffset = App.Placement(App.Vector(0, 0, -52.3), App.Rotation())
sketch8.addGeometry(Part.Circle(App.Vector(-40, 60, 0), App.Vector(0, 0, 1), 1.5), False)
sketch8.addConstraint([
    Sketcher.Constraint("Diameter", 0, Q("3 mm")),
    Sketcher.Constraint("DistanceX", 0, 3, -1, 1, Q("40 mm")),
    Sketcher.Constraint("DistanceY", -1, 1, 0, 3, Q("60 mm")),
])
pocket6 = doc.addObject("PartDesign::Pocket", "Pocket005")
body.addObject(pocket6)
pocket6.Profile = sketch8
pocket6.Length = 4
pocket6.Reversed = True

sketch9 = doc.addObject("Sketcher::SketchObject", "Sketch008")
body.addObject(sketch9)
sketch9.AttachmentSupport = (doc.XZ_Plane, [""])
sketch9.MapMode = "FlatFace"
sketch9.addGeometry(Part.Circle(App.Vector(-40, 60, 0), App.Vector(0, 0, 1), 1.5), False)
sketch9.addConstraint([
    Sketcher.Constraint("Diameter", 0, Q("3 mm")),
    Sketcher.Constraint("DistanceX", 0, 3, -1, 1, Q("40 mm")),
    Sketcher.Constraint("DistanceY", -1, 1, 0, 3, Q("60 mm")),
])
pocket7 = doc.addObject("PartDesign::Pocket", "Pocket006")
body.addObject(pocket7)
pocket7.Profile = sketch9
pocket7.Length = 4

sketch10 = doc.addObject("Sketcher::SketchObject", "Sketch009")
body.addObject(sketch10)
sketch10.AttachmentSupport = (doc.XZ_Plane, [""])
sketch10.MapMode = "FlatFace"
sketch10.addGeometry([
    Part.LineSegment(App.Vector(-35, -42.5, 0), App.Vector(-35, -50.5, 0)),
    Part.LineSegment(App.Vector(-35, -50.5, 0), App.Vector(-22.5, -50.5, 0)),
    Part.LineSegment(App.Vector(-22.5, -50.5, 0), App.Vector(-22.5, -42.5, 0)),
    Part.LineSegment(App.Vector(-22.5, -42.5, 0), App.Vector(-35, -42.5, 0)),
], False)
sketch10.addConstraint([
    Sketcher.Constraint("Coincident", 0, 2, 1, 1),
    Sketcher.Constraint("Coincident", 1, 2, 2, 1),
    Sketcher.Constraint("Coincident", 2, 2, 3, 1),
    Sketcher.Constraint("Coincident", 3, 2, 0, 1),
    Sketcher.Constraint("Vertical", 0),
    Sketcher.Constraint("Horizontal", 1),
    Sketcher.Constraint("Vertical", 2),
    Sketcher.Constraint("Horizontal", 3),
    Sketcher.Constraint("DistanceY", 0, 2, 0, 1, Q("8 mm")),
    Sketcher.Constraint("DistanceX", 1, 1, 1, 2, Q("12.5 mm")),
    Sketcher.Constraint("DistanceX", 0, 2, -1, 1, Q("35 mm")),
    Sketcher.Constraint("DistanceY", 0, 2, -1, 1, Q("50.5 mm")),
])
pocket8 = doc.addObject("PartDesign::Pocket", "Pocket007")
body.addObject(pocket8)
pocket8.Profile = sketch10
pocket8.Length = 6

sketch11 = doc.addObject("Sketcher::SketchObject", "Sketch010")
body.addObject(sketch11)
sketch11.AttachmentSupport = (doc.XY_Plane, [""])
sketch11.MapMode = "FlatFace"
sketch11.AttachmentOffset = App.Placement(App.Vector(0, 0, 65), App.Rotation())
sketch11.addGeometry([
    Part.Circle(App.Vector(-40, 44.8, 0), App.Vector(0, 0, 1), 1.5),
    Part.Circle(App.Vector(-40, 7.5, 0), App.Vector(0, 0, 1), 1.5),
], False)
sketch11.addConstraint([
    Sketcher.Constraint("Equal", 0, 1),
    Sketcher.Constraint("Vertical", 0, 3, 1, 3),
    Sketcher.Constraint("Diameter", 0, Q("3 mm")),
    Sketcher.Constraint("DistanceX", 0, 3, -1, 1, Q("40 mm")),
    Sketcher.Constraint("DistanceY", -1, 1, 0, 3, Q("44.8 mm")),
    Sketcher.Constraint("DistanceY", -1, 1, 1, 3, Q("7.5 mm")),
])
pocket9 = doc.addObject("PartDesign::Pocket", "Pocket008")
body.addObject(pocket9)
pocket9.Profile = sketch11
pocket9.Length = 4
body2 = doc.addObject("PartDesign::Body", "Body001")

sketch12 = doc.addObject("Sketcher::SketchObject", "Sketch011")
body2.addObject(sketch12)
sketch12.AttachmentSupport = (doc.getObject("XY_Plane001"), [""])
sketch12.MapMode = "FlatFace"
sketch12.AttachmentOffset = App.Placement(App.Vector(0, 0, 65), App.Rotation())
sketch12.addGeometry([
    Part.LineSegment(App.Vector(-24.25, 12.5, 0), App.Vector(-21.25, 12.5, 0)),
    Part.LineSegment(App.Vector(-21.25, 12.5, 0), App.Vector(-21.25, 22.5, 0)),
    Part.LineSegment(App.Vector(-21.25, 22.5, 0), App.Vector(-6.25, 22.5, 0)),
    Part.LineSegment(App.Vector(-6.25, 22.5, 0), App.Vector(-6.25, 12.5, 0)),
    Part.LineSegment(App.Vector(-6.25, 12.5, 0), App.Vector(-3.25, 12.5, 0)),
    Part.LineSegment(App.Vector(-3.25, 12.5, 0), App.Vector(-3.25, 25.5, 0)),
    Part.LineSegment(App.Vector(-3.25, 25.5, 0), App.Vector(-24.25, 25.5, 0)),
    Part.LineSegment(App.Vector(-24.25, 25.5, 0), App.Vector(-24.25, 12.5, 0)),
], False)
sketch12.addConstraint([
    Sketcher.Constraint("Coincident", 0, 2, 1, 1),
    Sketcher.Constraint("Coincident", 1, 2, 2, 1),
    Sketcher.Constraint("Coincident", 2, 2, 3, 1),
    Sketcher.Constraint("Coincident", 3, 2, 4, 1),
    Sketcher.Constraint("Coincident", 4, 2, 5, 1),
    Sketcher.Constraint("Coincident", 5, 2, 6, 1),
    Sketcher.Constraint("Coincident", 6, 2, 7, 1),
    Sketcher.Constraint("Coincident", 7, 2, 0, 1),
    Sketcher.Constraint("Horizontal", 0),
    Sketcher.Constraint("Vertical", 1),
    Sketcher.Constraint("Horizontal", 2),
    Sketcher.Constraint("Vertical", 3),
    Sketcher.Constraint("Horizontal", 4),
    Sketcher.Constraint("Vertical", 5),
    Sketcher.Constraint("Horizontal", 6),
    Sketcher.Constraint("Vertical", 7),
    Sketcher.Constraint("Horizontal", 0, 2, 3, 2),
    Sketcher.Constraint("Equal", 0, 4),
    Sketcher.Constraint("DistanceX", 0, 1, 0, 2, Q("3 mm")),
    Sketcher.Constraint("DistanceX", 2, 1, 2, 2, Q("15 mm")),
    Sketcher.Constraint("DistanceY", 1, 1, 1, 2, Q("10 mm")),
    Sketcher.Constraint("DistanceY", 5, 1, 5, 2, Q("13 mm")),
    Sketcher.Constraint("DistanceY", -1, 1, 0, 2, Q("12.5 mm")),
    Sketcher.Constraint("DistanceX", 0, 2, -1, 1, Q("21.25 mm")),
])
pad3 = doc.addObject("PartDesign::Pad", "Pad002")
body2.addObject(pad3)
pad3.Profile = sketch12
pad3.Length = 10
pad3.Reversed = True

doc.recompute()
